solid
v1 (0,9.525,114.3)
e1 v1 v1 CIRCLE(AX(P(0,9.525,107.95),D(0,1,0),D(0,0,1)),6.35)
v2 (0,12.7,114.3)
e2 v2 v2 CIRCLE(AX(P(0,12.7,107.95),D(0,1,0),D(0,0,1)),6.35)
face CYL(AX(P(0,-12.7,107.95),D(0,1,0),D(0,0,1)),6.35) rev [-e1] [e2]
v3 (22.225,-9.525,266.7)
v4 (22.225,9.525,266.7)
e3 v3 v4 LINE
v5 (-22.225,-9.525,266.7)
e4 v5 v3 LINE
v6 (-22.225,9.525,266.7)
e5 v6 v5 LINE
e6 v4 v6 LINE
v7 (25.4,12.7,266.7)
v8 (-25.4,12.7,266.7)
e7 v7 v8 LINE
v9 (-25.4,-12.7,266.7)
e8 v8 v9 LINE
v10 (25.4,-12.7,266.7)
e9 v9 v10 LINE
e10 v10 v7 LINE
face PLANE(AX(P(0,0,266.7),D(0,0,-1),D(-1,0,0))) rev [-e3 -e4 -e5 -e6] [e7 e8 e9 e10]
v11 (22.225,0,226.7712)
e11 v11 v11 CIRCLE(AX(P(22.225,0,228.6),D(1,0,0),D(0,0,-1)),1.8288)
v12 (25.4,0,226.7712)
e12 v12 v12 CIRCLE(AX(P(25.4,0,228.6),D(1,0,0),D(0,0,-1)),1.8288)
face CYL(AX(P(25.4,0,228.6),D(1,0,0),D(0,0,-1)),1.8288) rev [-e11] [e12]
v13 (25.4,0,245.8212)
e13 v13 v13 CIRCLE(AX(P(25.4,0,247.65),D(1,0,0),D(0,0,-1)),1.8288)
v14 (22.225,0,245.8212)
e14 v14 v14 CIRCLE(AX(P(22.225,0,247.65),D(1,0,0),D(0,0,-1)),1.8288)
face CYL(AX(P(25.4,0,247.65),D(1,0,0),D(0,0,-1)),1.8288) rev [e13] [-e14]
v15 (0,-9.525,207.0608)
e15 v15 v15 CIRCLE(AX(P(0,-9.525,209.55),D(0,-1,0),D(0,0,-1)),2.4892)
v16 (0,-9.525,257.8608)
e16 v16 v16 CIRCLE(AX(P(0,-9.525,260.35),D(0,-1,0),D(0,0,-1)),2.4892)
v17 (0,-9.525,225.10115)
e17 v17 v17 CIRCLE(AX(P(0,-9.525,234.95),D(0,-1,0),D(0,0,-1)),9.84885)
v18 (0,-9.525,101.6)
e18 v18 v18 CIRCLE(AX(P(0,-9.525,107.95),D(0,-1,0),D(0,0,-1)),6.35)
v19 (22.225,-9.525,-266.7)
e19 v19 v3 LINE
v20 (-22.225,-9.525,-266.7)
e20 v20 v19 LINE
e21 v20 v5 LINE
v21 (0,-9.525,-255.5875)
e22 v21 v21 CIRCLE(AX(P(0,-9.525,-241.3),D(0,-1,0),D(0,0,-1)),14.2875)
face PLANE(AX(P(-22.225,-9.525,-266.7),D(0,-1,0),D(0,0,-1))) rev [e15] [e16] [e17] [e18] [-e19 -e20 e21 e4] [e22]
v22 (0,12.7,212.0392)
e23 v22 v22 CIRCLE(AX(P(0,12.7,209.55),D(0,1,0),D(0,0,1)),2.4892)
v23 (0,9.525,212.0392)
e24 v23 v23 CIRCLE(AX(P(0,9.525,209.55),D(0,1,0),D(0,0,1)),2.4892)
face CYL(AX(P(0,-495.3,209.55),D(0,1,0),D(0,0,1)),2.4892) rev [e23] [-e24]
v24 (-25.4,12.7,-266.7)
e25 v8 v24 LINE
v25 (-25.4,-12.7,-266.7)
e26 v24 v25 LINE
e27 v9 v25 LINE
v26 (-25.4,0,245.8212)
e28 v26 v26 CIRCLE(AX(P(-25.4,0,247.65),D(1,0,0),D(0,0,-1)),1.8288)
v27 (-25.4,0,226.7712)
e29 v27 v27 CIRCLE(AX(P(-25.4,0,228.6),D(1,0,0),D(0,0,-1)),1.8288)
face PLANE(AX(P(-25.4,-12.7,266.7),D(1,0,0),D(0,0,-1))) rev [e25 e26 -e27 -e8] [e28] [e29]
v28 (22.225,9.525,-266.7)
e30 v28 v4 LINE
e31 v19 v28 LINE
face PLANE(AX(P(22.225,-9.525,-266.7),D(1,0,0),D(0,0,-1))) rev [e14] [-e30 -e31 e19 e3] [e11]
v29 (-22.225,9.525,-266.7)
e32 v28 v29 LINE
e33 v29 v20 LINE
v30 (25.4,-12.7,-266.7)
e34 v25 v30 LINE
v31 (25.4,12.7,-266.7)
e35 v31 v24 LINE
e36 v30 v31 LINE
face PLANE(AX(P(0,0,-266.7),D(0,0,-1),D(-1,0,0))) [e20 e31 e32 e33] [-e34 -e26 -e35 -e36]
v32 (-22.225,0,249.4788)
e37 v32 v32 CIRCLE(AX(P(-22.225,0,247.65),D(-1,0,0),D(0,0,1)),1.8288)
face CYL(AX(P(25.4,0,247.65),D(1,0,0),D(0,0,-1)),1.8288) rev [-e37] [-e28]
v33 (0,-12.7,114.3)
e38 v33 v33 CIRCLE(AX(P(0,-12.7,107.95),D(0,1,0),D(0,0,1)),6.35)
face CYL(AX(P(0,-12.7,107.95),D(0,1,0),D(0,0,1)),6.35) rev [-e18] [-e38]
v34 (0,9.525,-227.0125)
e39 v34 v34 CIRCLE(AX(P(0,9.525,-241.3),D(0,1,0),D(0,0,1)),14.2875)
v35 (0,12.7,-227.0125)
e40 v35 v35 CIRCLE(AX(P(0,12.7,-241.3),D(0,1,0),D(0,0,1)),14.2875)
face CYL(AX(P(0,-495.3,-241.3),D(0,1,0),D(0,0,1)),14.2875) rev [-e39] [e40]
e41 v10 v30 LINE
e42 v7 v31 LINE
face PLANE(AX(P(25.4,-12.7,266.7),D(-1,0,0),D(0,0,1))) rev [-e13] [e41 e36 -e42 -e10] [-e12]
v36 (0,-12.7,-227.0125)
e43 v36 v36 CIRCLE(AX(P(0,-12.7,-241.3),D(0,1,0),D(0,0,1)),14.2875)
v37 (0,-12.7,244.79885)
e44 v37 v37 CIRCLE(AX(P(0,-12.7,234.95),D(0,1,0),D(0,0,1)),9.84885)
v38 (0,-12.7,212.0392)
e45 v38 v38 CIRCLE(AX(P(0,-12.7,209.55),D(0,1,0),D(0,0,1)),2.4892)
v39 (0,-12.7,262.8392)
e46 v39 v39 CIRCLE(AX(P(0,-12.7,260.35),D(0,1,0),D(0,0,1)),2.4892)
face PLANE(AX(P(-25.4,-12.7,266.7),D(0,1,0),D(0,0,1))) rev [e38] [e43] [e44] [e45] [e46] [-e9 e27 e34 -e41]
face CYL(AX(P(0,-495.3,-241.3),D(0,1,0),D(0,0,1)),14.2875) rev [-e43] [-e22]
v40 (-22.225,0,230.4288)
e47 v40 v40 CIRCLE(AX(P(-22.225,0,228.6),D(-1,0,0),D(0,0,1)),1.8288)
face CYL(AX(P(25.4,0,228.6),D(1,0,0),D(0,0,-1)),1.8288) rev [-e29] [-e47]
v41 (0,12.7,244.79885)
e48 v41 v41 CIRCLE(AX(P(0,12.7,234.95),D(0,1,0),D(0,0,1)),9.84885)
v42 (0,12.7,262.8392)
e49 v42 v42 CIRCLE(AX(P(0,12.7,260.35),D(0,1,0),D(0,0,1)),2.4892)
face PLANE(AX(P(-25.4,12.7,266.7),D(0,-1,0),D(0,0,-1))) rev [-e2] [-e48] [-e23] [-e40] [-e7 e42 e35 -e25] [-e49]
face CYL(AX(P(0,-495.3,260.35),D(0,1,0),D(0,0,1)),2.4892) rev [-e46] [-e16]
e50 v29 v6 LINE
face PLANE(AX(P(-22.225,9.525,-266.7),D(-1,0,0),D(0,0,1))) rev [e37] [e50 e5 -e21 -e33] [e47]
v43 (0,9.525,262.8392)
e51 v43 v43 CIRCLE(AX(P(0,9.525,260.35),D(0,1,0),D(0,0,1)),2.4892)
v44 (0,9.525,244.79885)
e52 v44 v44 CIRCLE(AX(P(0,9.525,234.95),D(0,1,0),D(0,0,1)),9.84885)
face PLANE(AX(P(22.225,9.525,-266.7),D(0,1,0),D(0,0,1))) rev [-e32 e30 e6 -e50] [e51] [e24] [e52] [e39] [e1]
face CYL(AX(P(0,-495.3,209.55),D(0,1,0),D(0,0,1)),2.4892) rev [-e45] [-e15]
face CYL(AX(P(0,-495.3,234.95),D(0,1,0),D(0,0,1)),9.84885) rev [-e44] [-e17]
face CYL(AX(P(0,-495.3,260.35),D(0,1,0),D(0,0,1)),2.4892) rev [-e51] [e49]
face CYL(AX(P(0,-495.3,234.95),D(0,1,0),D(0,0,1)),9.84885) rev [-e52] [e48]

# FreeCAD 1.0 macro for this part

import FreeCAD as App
import Part
import Sketcher
Q = App.Units.Quantity

doc = App.newDocument("Part")
body = doc.addObject("PartDesign::Body", "Body")

sketch1 = body.newObject("Sketcher::SketchObject", "Sketch")
sketch1.AttachmentSupport = (doc.getObject("XY_Plane"), [""])
sketch1.MapMode = "FlatFace"
sketch1.addGeometry([
    Part.LineSegment(App.Vector(-25, 13, 0), App.Vector(-25, -13, 0)),
    Part.LineSegment(App.Vector(-25, -13, 0), App.Vector(25, -13, 0)),
    Part.LineSegment(App.Vector(25, -13, 0), App.Vector(25, 13, 0)),
    Part.LineSegment(App.Vector(25, 13, 0), App.Vector(-25, 13, 0)),
], False)
sketch1.addConstraint([
    Sketcher.Constraint("Coincident", 0, 2, 1, 1),
    Sketcher.Constraint("Coincident", 1, 2, 2, 1),
    Sketcher.Constraint("Coincident", 2, 2, 3, 1),
    Sketcher.Constraint("Coincident", 3, 2, 0, 1),
    Sketcher.Constraint("Vertical", 0),
    Sketcher.Constraint("Horizontal", 1),
    Sketcher.Constraint("Vertical", 2),
    Sketcher.Constraint("Horizontal", 3),
    Sketcher.Constraint("Symmetric", 0, 2, 2, 2, -1, 1),
    Sketcher.Constraint("DistanceX", 1, 1, 1, 2, Q("2 in")),
    Sketcher.Constraint("DistanceY", 0, 2, 0, 1, Q("1 in")),
])
pad1 = body.newObject("PartDesign::Pad", "Pad")
pad1.Profile = sketch1
pad1.Length = Q("21 in")
pad1.Midplane = True

sketch2 = body.newObject("Sketcher::SketchObject", "Sketch001")
sketch2.AttachmentSupport = (doc.getObject("XY_Plane"), [""])
sketch2.MapMode = "FlatFace"
sketch2.AttachmentOffset = App.Placement(App.Vector(0, 0, 10.5 * 25.4), App.Rotation())
sketch2.addGeometry([
    Part.LineSegment(App.Vector(-22, 10, 0), App.Vector(-22, -10, 0)),
    Part.LineSegment(App.Vector(-22, -10, 0), App.Vector(22, -10, 0)),
    Part.LineSegment(App.Vector(22, -10, 0), App.Vector(22, 10, 0)),
    Part.LineSegment(App.Vector(22, 10, 0), App.Vector(-22, 10, 0)),
], False)
sketch2.addConstraint([
    Sketcher.Constraint("Coincident", 0, 2, 1, 1),
    Sketcher.Constraint("Coincident", 1, 2, 2, 1),
    Sketcher.Constraint("Coincident", 2, 2, 3, 1),
    Sketcher.Constraint("Coincident", 3, 2, 0, 1),
    Sketcher.Constraint("Vertical", 0),
    Sketcher.Constraint("Horizontal", 1),
    Sketcher.Constraint("Vertical", 2),
    Sketcher.Constraint("Horizontal", 3),
    Sketcher.Constraint("Symmetric", 0, 2, 2, 2, -1, 1),
    Sketcher.Constraint("DistanceX", 1, 1, 1, 2, Q("1.75 in")),
    Sketcher.Constraint("DistanceY", 0, 2, 0, 1, Q("0.75 in")),
])
pocket1 = body.newObject("PartDesign::Pocket", "Pocket")
pocket1.Profile = sketch2
pocket1.Type = "ThroughAll"

sketch3 = body.newObject("Sketcher::SketchObject", "Sketch002")
sketch3.AttachmentSupport = (doc.getObject("XZ_Plane"), [""])
sketch3.MapMode = "FlatFace"
sketch3.AttachmentOffset = App.Placement(App.Vector(0, 0, -0.5 * 25.4), App.Rotation())
sketch3.addGeometry([
    Part.Circle(App.Vector(0, 260.4, 0), App.Vector(0, 0, 1), 2.5),
    Part.Circle(App.Vector(0, 234.9, 0), App.Vector(0, 0, 1), 9.8),
    Part.Circle(App.Vector(0, 209.6, 0), App.Vector(0, 0, 1), 2.5),
    Part.Circle(App.Vector(0, -241.3, 0), App.Vector(0, 0, 1), 14.3),
], False)
sketch3.addConstraint([
    Sketcher.Constraint("Equal", 0, 2),
    Sketcher.Constraint("PointOnObject", 0, 3, -2),
    Sketcher.Constraint("PointOnObject", 1, 3, -2),
    Sketcher.Constraint("PointOnObject", 2, 3, -2),
    Sketcher.Constraint("PointOnObject", 3, 3, -2),
    Sketcher.Constraint("Diameter", 0, Q("0.196 in")),
    Sketcher.Constraint("Diameter", 3, Q("1.125 in")),
    Sketcher.Constraint("DistanceY", 1, 3, 0, 3, Q("1 in")),
    Sketcher.Constraint("DistanceY", 2, 3, 1, 3, Q("1 in")),
    Sketcher.Constraint("Diameter", 1, Q("0.7755 in")),
    Sketcher.Constraint("DistanceY", 3, 3, -1, 1, Q("9.5 in")),
    Sketcher.Constraint("DistanceY", -1, 1, 0, 3, Q("10.25 in")),
])
pocket2 = body.newObject("PartDesign::Pocket", "Pocket001")
pocket2.Profile = sketch3
pocket2.Length = Q("20 in")
pocket2.Reversed = True

sketch4 = body.newObject("Sketcher::SketchObject", "Sketch003")
sketch4.AttachmentSupport = (doc.getObject("XZ_Plane"), [""])
sketch4.MapMode = "FlatFace"
sketch4.AttachmentOffset = App.Placement(App.Vector(0, 0, -0.5 * 25.4), App.Rotation())
sketch4.addGeometry(Part.Circle(App.Vector(0, 108, 0), App.Vector(0, 0, 1), 6), False)
sketch4.addConstraint([
    Sketcher.Constraint("PointOnObject", 0, 3, -2),
    Sketcher.Constraint("Diameter", 0, Q("0.5 in")),
    Sketcher.Constraint("DistanceY", -1, 1, 0, 3, Q("4.25 in")),
])
pocket3 = body.newObject("PartDesign::Pocket", "Pocket002")
pocket3.Profile = sketch4
pocket3.Type = "ThroughAll"
pocket3.Reversed = True

sketch5 = body.newObject("Sketcher::SketchObject", "Sketch004")
sketch5.AttachmentSupport = (doc.getObject("YZ_Plane"), [""])
sketch5.MapMode = "FlatFace"
sketch5.AttachmentOffset = App.Placement(App.Vector(0, 0, 1 * 25.4), App.Rotation())
sketch5.addGeometry([
    Part.Circle(App.Vector(0, 247.7, 0), App.Vector(0, 0, 1), 1.8),
    Part.Circle(App.Vector(0, 228.6, 0), App.Vector(0, 0, 1), 1.8),
], False)
sketch5.addConstraint([
    Sketcher.Constraint("Equal", 0, 1),
    Sketcher.Constraint("PointOnObject", 0, 3, -2),
    Sketcher.Constraint("PointOnObject", 1, 3, -2),
    Sketcher.Constraint("Diameter", 0, Q("0.144 in")),
    Sketcher.Constraint("DistanceY", -1, 1, 1, 3, Q("9 in")),
    Sketcher.Constraint("DistanceY", -1, 1, 0, 3, Q("9.75 in")),
])
doc.recompute()
hole = body.newObject("PartDesign::Hole", "Hole")
hole.Profile = sketch5
hole.ThreadType = "None"
hole.Diameter = Q("0.144 in")
hole.DepthType = "ThroughAll"

doc.recompute()
